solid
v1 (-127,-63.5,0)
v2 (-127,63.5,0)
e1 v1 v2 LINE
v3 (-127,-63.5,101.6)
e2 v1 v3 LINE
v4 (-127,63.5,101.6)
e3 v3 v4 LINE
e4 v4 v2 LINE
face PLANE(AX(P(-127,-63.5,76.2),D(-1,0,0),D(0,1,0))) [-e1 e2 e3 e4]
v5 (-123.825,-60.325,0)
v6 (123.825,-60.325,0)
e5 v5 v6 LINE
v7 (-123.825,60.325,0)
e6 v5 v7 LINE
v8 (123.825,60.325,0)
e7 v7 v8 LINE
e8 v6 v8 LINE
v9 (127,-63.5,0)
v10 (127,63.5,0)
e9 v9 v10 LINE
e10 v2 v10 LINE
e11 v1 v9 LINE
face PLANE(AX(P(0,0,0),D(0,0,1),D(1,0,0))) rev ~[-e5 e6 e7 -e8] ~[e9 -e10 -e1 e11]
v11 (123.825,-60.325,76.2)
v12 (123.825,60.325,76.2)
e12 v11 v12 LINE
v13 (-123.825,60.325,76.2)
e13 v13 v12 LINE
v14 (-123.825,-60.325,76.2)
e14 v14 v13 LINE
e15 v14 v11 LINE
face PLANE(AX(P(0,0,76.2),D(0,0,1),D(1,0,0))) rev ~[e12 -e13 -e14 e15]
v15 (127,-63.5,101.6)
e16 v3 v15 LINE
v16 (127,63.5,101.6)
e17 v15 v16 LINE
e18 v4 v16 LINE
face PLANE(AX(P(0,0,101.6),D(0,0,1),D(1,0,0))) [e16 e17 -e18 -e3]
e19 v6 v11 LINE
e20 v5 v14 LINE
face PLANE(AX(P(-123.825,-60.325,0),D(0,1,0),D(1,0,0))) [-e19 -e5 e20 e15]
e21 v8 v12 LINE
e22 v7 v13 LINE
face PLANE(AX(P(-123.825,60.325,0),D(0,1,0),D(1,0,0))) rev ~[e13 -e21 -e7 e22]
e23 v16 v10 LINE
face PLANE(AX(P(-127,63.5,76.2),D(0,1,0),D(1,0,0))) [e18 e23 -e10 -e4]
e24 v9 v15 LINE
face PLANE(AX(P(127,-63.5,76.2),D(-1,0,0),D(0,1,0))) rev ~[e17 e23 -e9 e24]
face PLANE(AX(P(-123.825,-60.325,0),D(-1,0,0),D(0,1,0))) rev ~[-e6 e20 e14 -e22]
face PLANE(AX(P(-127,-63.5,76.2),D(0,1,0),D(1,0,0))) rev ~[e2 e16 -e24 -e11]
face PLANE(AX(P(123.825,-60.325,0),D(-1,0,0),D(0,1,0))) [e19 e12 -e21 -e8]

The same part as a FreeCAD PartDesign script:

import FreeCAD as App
import Part
import Sketcher
Q = App.Units.Quantity

doc = App.newDocument("Part")
body = doc.addObject("PartDesign::Body", "Body")

# Sketch on XY plane
sketch1 = body.newObject("Sketcher::SketchObject", "Sketch")
sketch1.AttachmentSupport = (doc.getObject("XY_Plane"), [""])
sketch1.MapMode = "FlatFace"
sketch1.addGeometry([
    Part.LineSegment(App.Vector(-127, 64, 0), App.Vector(-127, -64, 0)),  # 0
    Part.LineSegment(App.Vector(-127, -64, 0), App.Vector(127, -64, 0)),  # 1
    Part.LineSegment(App.Vector(127, -64, 0), App.Vector(127, 64, 0)),  # 2
    Part.LineSegment(App.Vector(127, 64, 0), App.Vector(-127, 64, 0)),  # 3
    Part.LineSegment(App.Vector(124, -60, 0), App.Vector(-124, -60, 0)),  # 4
    Part.LineSegment(App.Vector(-124, -60, 0), App.Vector(-124, 60, 0)),  # 5
    Part.LineSegment(App.Vector(-124, 60, 0), App.Vector(124, 60, 0)),  # 6
    Part.LineSegment(App.Vector(124, 60, 0), App.Vector(124, -60, 0)),  # 7
], False)
sketch1.addConstraint([
    Sketcher.Constraint("Coincident", 0, 2, 1, 1),
    Sketcher.Constraint("Coincident", 1, 2, 2, 1),
    Sketcher.Constraint("Coincident", 2, 2, 3, 1),
    Sketcher.Constraint("Coincident", 3, 2, 0, 1),
    Sketcher.Constraint("Coincident", 4, 2, 5, 1),
    Sketcher.Constraint("Coincident", 5, 2, 6, 1),
    Sketcher.Constraint("Coincident", 6, 2, 7, 1),
    Sketcher.Constraint("Coincident", 7, 2, 4, 1),
    Sketcher.Constraint("Vertical", 0),
    Sketcher.Constraint("Horizontal", 1),
    Sketcher.Constraint("Vertical", 2),
    Sketcher.Constraint("Horizontal", 3),
    Sketcher.Constraint("Horizontal", 4),
    Sketcher.Constraint("Vertical", 5),
    Sketcher.Constraint("Horizontal", 6),
    Sketcher.Constraint("Vertical", 7),
    Sketcher.Constraint("Symmetric", 0, 2, 2, 2, -1, 1),
    Sketcher.Constraint("Symmetric", 4, 2, 6, 2, -1, 1),
    Sketcher.Constraint("DistanceX", 1, 1, 1, 2, Q("10 in")),
    Sketcher.Constraint("DistanceY", 0, 2, 0, 1, Q("5 in")),
    Sketcher.Constraint("DistanceX", 4, 2, 4, 1, Q("9.75 in")),
    Sketcher.Constraint("DistanceY", 5, 1, 5, 2, Q("4.75 in")),
])
pad1 = body.newObject("PartDesign::Pad", "Pad")
pad1.Profile = sketch1
pad1.Length = Q("3 in")

# Sketch on XY plane
sketch2 = body.newObject("Sketcher::SketchObject", "Sketch001")
sketch2.AttachmentSupport = (doc.getObject("XY_Plane"), [""])
sketch2.MapMode = "FlatFace"
sketch2.AttachmentOffset = App.Placement(App.Vector(0, 0, 3 * 25.4), App.Rotation())
sketch2.addGeometry([
    Part.LineSegment(App.Vector(-127, 64, 0), App.Vector(-127, -64, 0)),
    Part.LineSegment(App.Vector(-127, -64, 0), App.Vector(127, -64, 0)),
    Part.LineSegment(App.Vector(127, -64, 0), App.Vector(127, 64, 0)),
    Part.LineSegment(App.Vector(127, 64, 0), App.Vector(-127, 64, 0)),
], False)
sketch2.addConstraint([
    Sketcher.Constraint("Coincident", 0, 2, 1, 1),
    Sketcher.Constraint("Coincident", 1, 2, 2, 1),
    Sketcher.Constraint("Coincident", 2, 2, 3, 1),
    Sketcher.Constraint("Coincident", 3, 2, 0, 1),
    Sketcher.Constraint("Vertical", 0),
    Sketcher.Constraint("Horizontal", 1),
    Sketcher.Constraint("Vertical", 2),
    Sketcher.Constraint("Horizontal", 3),
    Sketcher.Constraint("Symmetric", 0, 2, 2, 2, -1, 1),
    Sketcher.Constraint("DistanceX", 1, 1, 1, 2, Q("10 in")),
    Sketcher.Constraint("DistanceY", 0, 2, 0, 1, Q("5 in")),
])
pad2 = body.newObject("PartDesign::Pad", "Pad001")
pad2.Profile = sketch2
pad2.Length = Q("1 in")

doc.recompute()
